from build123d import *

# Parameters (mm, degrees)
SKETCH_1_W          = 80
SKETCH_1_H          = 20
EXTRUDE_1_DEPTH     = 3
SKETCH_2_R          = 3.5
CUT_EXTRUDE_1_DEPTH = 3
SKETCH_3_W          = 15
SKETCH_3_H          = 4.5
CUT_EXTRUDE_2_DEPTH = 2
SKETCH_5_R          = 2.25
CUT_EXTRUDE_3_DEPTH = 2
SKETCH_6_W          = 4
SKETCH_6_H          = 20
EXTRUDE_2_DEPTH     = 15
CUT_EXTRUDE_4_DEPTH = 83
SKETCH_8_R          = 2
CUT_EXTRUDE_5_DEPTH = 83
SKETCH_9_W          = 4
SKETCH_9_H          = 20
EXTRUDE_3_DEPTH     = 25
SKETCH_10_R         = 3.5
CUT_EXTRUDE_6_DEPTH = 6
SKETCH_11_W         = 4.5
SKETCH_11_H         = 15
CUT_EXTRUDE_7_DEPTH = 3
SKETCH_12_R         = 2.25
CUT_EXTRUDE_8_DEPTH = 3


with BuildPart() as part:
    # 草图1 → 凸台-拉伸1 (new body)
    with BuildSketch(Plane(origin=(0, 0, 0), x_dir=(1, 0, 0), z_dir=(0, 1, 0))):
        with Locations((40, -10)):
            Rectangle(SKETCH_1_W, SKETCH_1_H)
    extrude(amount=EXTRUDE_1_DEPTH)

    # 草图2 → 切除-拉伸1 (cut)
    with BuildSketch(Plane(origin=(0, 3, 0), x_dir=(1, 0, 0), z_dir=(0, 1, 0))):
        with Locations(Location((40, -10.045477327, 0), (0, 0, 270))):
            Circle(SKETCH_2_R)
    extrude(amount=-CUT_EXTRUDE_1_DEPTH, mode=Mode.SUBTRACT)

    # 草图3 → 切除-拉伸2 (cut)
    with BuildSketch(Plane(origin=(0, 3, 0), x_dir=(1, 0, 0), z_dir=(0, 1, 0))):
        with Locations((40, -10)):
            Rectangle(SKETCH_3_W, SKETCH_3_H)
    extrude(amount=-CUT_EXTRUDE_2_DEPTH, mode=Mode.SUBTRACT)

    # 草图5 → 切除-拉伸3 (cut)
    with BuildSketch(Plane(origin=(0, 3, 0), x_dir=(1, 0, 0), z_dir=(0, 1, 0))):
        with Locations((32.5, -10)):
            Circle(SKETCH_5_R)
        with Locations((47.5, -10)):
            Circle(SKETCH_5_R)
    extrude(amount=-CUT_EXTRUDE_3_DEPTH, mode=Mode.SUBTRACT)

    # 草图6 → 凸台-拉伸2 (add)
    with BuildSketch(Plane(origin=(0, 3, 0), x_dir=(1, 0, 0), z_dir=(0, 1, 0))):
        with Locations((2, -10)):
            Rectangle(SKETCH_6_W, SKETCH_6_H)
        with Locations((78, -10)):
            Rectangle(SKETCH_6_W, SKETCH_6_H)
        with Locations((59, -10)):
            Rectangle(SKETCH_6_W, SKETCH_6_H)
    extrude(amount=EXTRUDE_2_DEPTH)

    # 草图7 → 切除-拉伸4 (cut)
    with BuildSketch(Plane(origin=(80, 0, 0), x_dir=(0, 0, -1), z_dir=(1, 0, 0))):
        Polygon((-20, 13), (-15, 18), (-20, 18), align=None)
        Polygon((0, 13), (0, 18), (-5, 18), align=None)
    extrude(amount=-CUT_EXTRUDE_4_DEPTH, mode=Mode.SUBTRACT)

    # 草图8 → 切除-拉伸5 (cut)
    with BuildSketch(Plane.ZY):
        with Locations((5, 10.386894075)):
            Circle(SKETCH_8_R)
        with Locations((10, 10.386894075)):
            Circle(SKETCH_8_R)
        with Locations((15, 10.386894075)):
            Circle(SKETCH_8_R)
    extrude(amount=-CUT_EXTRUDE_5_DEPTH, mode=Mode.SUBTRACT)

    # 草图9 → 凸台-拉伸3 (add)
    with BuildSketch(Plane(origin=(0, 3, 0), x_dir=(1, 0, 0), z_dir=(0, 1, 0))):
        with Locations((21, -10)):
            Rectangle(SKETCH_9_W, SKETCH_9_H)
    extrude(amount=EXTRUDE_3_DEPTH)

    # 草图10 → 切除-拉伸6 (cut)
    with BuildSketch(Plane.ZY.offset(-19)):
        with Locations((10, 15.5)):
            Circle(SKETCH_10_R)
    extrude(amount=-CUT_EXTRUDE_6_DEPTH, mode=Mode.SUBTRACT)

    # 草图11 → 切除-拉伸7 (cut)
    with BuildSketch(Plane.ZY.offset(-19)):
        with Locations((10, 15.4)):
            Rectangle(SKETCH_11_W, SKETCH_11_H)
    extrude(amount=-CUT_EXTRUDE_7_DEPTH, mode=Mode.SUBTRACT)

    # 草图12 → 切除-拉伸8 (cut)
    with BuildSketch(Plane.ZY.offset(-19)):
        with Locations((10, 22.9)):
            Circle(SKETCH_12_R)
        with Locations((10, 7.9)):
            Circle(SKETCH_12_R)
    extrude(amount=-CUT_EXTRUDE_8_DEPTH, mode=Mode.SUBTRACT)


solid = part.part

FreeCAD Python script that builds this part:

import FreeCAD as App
import Part
import Sketcher

V = App.Vector
Q = App.Units.Quantity

doc = App.newDocument("Part")
body = doc.addObject("PartDesign::Body", "Body")

sketch1 = body.newObject("Sketcher::SketchObject", "Sketch")
sketch1.AttachmentSupport = (doc.getObject("XZ_Plane"), [""])
sketch1.MapMode = "FlatFace"
sketch1.addGeometry([
    Part.LineSegment(V(0, 0, 0), V(0, 20, 0)),
    Part.LineSegment(V(0, 20, 0), V(80, 20, 0)),
    Part.LineSegment(V(80, 20, 0), V(80, 0, 0)),
    Part.LineSegment(V(80, 0, 0), V(0, 0, 0)),
], False)
sketch1.addConstraint([
    Sketcher.Constraint("Coincident", 0, 2, 1, 1),
    Sketcher.Constraint("Coincident", 1, 2, 2, 1),
    Sketcher.Constraint("Coincident", 2, 2, 3, 1),
    Sketcher.Constraint("Coincident", 3, 2, 0, 1),
    Sketcher.Constraint("Vertical", 0),
    Sketcher.Constraint("Horizontal", 1),
    Sketcher.Constraint("Vertical", 2),
    Sketcher.Constraint("Horizontal", 3),
    Sketcher.Constraint("Coincident", 3, 2, -1, 1),
    Sketcher.Constraint("DistanceX", 1, 1, 1, 2, Q("80 mm")),
    Sketcher.Constraint("DistanceY", 0, 1, 0, 2, Q("20 mm")),
])
pad1 = body.newObject("PartDesign::Pad", "Pad")
pad1.Profile = sketch1
pad1.Length = 3
pad1.Reversed = True

sketch2 = body.newObject("Sketcher::SketchObject", "Sketch001")
sketch2.AttachmentSupport = (doc.getObject("XZ_Plane"), [""])
sketch2.MapMode = "FlatFace"
sketch2.AttachmentOffset = App.Placement(V(0, 0, -3), App.Rotation())
sketch2.addGeometry(Part.Circle(V(40, 10, 0), V(0, 0, 1), 3.5), False)
sketch2.addConstraint([
    Sketcher.Constraint("Diameter", 0, Q("7 mm")),
    Sketcher.Constraint("DistanceX", -1, 1, 0, 3, Q("40 mm")),
    Sketcher.Constraint("DistanceY", -1, 1, 0, 3, Q("10.045477 mm")),
])
pocket1 = body.newObject("PartDesign::Pocket", "Pocket")
pocket1.Profile = sketch2
pocket1.Length = 3
pocket1.Reversed = True

sketch3 = body.newObject("Sketcher::SketchObject", "Sketch002")
sketch3.AttachmentSupport = (doc.getObject("XZ_Plane"), [""])
sketch3.MapMode = "FlatFace"
sketch3.AttachmentOffset = App.Placement(V(0, 0, -3), App.Rotation())
sketch3.addGeometry([
    Part.LineSegment(V(32.5, 7.8, 0), V(32.5, 12.2, 0)),
    Part.LineSegment(V(32.5, 12.2, 0), V(47.5, 12.2, 0)),
    Part.LineSegment(V(47.5, 12.2, 0), V(47.5, 7.8, 0)),
    Part.LineSegment(V(47.5, 7.8, 0), V(32.5, 7.8, 0)),
], False)
sketch3.addConstraint([
    Sketcher.Constraint("Coincident", 0, 2, 1, 1),
    Sketcher.Constraint("Coincident", 1, 2, 2, 1),
    Sketcher.Constraint("Coincident", 2, 2, 3, 1),
    Sketcher.Constraint("Coincident", 3, 2, 0, 1),
    Sketcher.Constraint("Vertical", 0),
    Sketcher.Constraint("Horizontal", 1),
    Sketcher.Constraint("Vertical", 2),
    Sketcher.Constraint("Horizontal", 3),
    Sketcher.Constraint("DistanceX", 1, 1, 1, 2, Q("15 mm")),
    Sketcher.Constraint("DistanceY", 0, 1, 0, 2, Q("4.5 mm")),
    Sketcher.Constraint("DistanceX", -1, 1, 0, 2, Q("32.5 mm")),
    Sketcher.Constraint("DistanceY", -1, 1, 0, 2, Q("12.25 mm")),
])
pocket2 = body.newObject("PartDesign::Pocket", "Pocket001")
pocket2.Profile = sketch3
pocket2.Length = 2
pocket2.Reversed = True

sketch4 = body.newObject("Sketcher::SketchObject", "Sketch003")
sketch4.AttachmentSupport = (doc.getObject("XZ_Plane"), [""])
sketch4.MapMode = "FlatFace"
sketch4.AttachmentOffset = App.Placement(V(0, 0, -3), App.Rotation())
sketch4.addGeometry([
    Part.Circle(V(32.5, 10, 0), V(0, 0, 1), 2.2),
    Part.Circle(V(47.5, 10, 0), V(0, 0, 1), 2.2),
], False)
sketch4.addConstraint([
    Sketcher.Constraint("Equal", 0, 1),
    Sketcher.Constraint("Horizontal", 0, 3, 1, 3),
    Sketcher.Constraint("Diameter", 0, Q("4.5 mm")),
    Sketcher.Constraint("DistanceY", -1, 1, 0, 3, Q("10 mm")),
    Sketcher.Constraint("DistanceX", 0, 3, 1, 3, Q("15 mm")),
    Sketcher.Constraint("DistanceX", -1, 1, 0, 3, Q("32.5 mm")),
])
pocket3 = body.newObject("PartDesign::Pocket", "Pocket002")
pocket3.Profile = sketch4
pocket3.Length = 2
pocket3.Reversed = True

sketch5 = body.newObject("Sketcher::SketchObject", "Sketch004")
sketch5.AttachmentSupport = (doc.getObject("XZ_Plane"), [""])
sketch5.MapMode = "FlatFace"
sketch5.AttachmentOffset = App.Placement(V(0, 0, -3), App.Rotation())
sketch5.addGeometry([
    Part.LineSegment(V(0, 0, 0), V(0, 20, 0)),
    Part.LineSegment(V(0, 20, 0), V(4, 20, 0)),
    Part.LineSegment(V(4, 20, 0), V(4, 0, 0)),
    Part.LineSegment(V(4, 0, 0), V(0, 0, 0)),
    Part.LineSegment(V(76, 0, 0), V(76, 20, 0)),
    Part.LineSegment(V(76, 20, 0), V(80, 20, 0)),
    Part.LineSegment(V(80, 20, 0), V(80, 0, 0)),
    Part.LineSegment(V(80, 0, 0), V(76, 0, 0)),
    Part.LineSegment(V(57, 0, 0), V(57, 20, 0)),
    Part.LineSegment(V(57, 20, 0), V(61, 20, 0)),
    Part.LineSegment(V(61, 20, 0), V(61, 0, 0)),
    Part.LineSegment(V(61, 0, 0), V(57, 0, 0)),
], False)
sketch5.addConstraint([
    Sketcher.Constraint("Coincident", 0, 2, 1, 1),
    Sketcher.Constraint("Coincident", 1, 2, 2, 1),
    Sketcher.Constraint("Coincident", 2, 2, 3, 1),
    Sketcher.Constraint("Coincident", 3, 2, 0, 1),
    Sketcher.Constraint("Coincident", 4, 2, 5, 1),
    Sketcher.Constraint("Coincident", 5, 2, 6, 1),
    Sketcher.Constraint("Coincident", 6, 2, 7, 1),
    Sketcher.Constraint("Coincident", 7, 2, 4, 1),
    Sketcher.Constraint("Coincident", 8, 2, 9, 1),
    Sketcher.Constraint("Coincident", 9, 2, 10, 1),
    Sketcher.Constraint("Coincident", 10, 2, 11, 1),
    Sketcher.Constraint("Coincident", 11, 2, 8, 1),
    Sketcher.Constraint("Vertical", 0),
    Sketcher.Constraint("Horizontal", 1),
    Sketcher.Constraint("Vertical", 2),
    Sketcher.Constraint("Horizontal", 3),
    Sketcher.Constraint("Vertical", 4),
    Sketcher.Constraint("Horizontal", 5),
    Sketcher.Constraint("Vertical", 6),
    Sketcher.Constraint("Horizontal", 7),
    Sketcher.Constraint("Vertical", 8),
    Sketcher.Constraint("Horizontal", 9),
    Sketcher.Constraint("Vertical", 10),
    Sketcher.Constraint("Horizontal", 11),
    Sketcher.Constraint("Coincident", 3, 2, -1, 1),
    Sketcher.Constraint("PointOnObject", 6, 2, -1),
    Sketcher.Constraint("PointOnObject", 10, 2, -1),
    Sketcher.Constraint("Horizontal", 1, 2, 4, 2),
    Sketcher.Constraint("Horizontal", 5, 2, 8, 2),
    Sketcher.Constraint("Equal", 3, 5),
    Sketcher.Constraint("Equal", 7, 9),
    Sketcher.Constraint("DistanceX", 1, 1, 1, 2, Q("4 mm")),
    Sketcher.Constraint("DistanceY", 0, 1, 0, 2, Q("20 mm")),
    Sketcher.Constraint("DistanceX", -1, 1, 4, 2, Q("76 mm")),
    Sketcher.Constraint("DistanceX", -1, 1, 8, 2, Q("57 mm")),
])
pad2 = body.newObject("PartDesign::Pad", "Pad001")
pad2.Profile = sketch5
pad2.Length = 15
pad2.Reversed = True

sketch6 = body.newObject("Sketcher::SketchObject", "Sketch005")
sketch6.AttachmentSupport = (doc.getObject("YZ_Plane"), [""])
sketch6.MapMode = "FlatFace"
sketch6.AttachmentOffset = App.Placement(V(0, 0, 80), App.Rotation())
sketch6.addGeometry([
    Part.LineSegment(V(13, 20, 0), V(18, 15, 0)),
    Part.LineSegment(V(18, 15, 0), V(18, 20, 0)),
    Part.LineSegment(V(18, 20, 0), V(13, 20, 0)),
    Part.LineSegment(V(13, 0, 0), V(18, 0, 0)),
    Part.LineSegment(V(18, 0, 0), V(18, 5, 0)),
    Part.LineSegment(V(18, 5, 0), V(13, 0, 0)),
], False)
sketch6.addConstraint([
    Sketcher.Constraint("Coincident", 0, 2, 1, 1),
    Sketcher.Constraint("Coincident", 1, 2, 2, 1),
    Sketcher.Constraint("Coincident", 2, 2, 0, 1),
    Sketcher.Constraint("Coincident", 3, 2, 4, 1),
    Sketcher.Constraint("Coincident", 4, 2, 5, 1),
    Sketcher.Constraint("Coincident", 5, 2, 3, 1),
    Sketcher.Constraint("Vertical", 1),
    Sketcher.Constraint("Horizontal", 2),
    Sketcher.Constraint("Horizontal", 3),
    Sketcher.Constraint("Vertical", 4),
    Sketcher.Constraint("PointOnObject", 3, 2, -1),
    Sketcher.Constraint("Perpendicular", 0, 5),
    Sketcher.Constraint("Vertical", 1, 2, 3, 2),
    Sketcher.Constraint("Vertical", 2, 2, 5, 2),
    Sketcher.Constraint("Equal", 3, 1),
    Sketcher.Constraint("DistanceX", 2, 2, 2, 1, Q("5 mm")),
    Sketcher.Constraint("DistanceX", -1, 1, 0, 2, Q("18 mm")),
    Sketcher.Constraint("DistanceY", -1, 1, 0, 2, Q("15 mm")),
])
pocket4 = body.newObject("PartDesign::Pocket", "Pocket003")
pocket4.Profile = sketch6
pocket4.Length = 83

sketch7 = body.newObject("Sketcher::SketchObject", "Sketch006")
sketch7.AttachmentSupport = (doc.getObject("YZ_Plane"), [""])
sketch7.MapMode = "FlatFace"
sketch7.addGeometry([
    Part.Circle(V(10.4, 5, 0), V(0, 0, 1), 2),
    Part.Circle(V(10.4, 10, 0), V(0, 0, 1), 2),
    Part.Circle(V(10.4, 15, 0), V(0, 0, 1), 2),
], False)
sketch7.addConstraint([
    Sketcher.Constraint("Equal", 0, 1),
    Sketcher.Constraint("Equal", 1, 2),
    Sketcher.Constraint("Vertical", 0, 3, 1, 3),
    Sketcher.Constraint("Vertical", 1, 3, 2, 3),
    Sketcher.Constraint("Diameter", 0, Q("4 mm")),
    Sketcher.Constraint("DistanceY", -1, 1, 0, 3, Q("5 mm")),
    Sketcher.Constraint("DistanceY", -1, 1, 1, 3, Q("10 mm")),
    Sketcher.Constraint("DistanceY", -1, 1, 2, 3, Q("15 mm")),
    Sketcher.Constraint("DistanceX", -1, 1, 0, 3, Q("10.386894 mm")),
])
pocket5 = body.newObject("PartDesign::Pocket", "Pocket004")
pocket5.Profile = sketch7
pocket5.Length = 83
pocket5.Reversed = True

sketch8 = body.newObject("Sketcher::SketchObject", "Sketch007")
sketch8.AttachmentSupport = (doc.getObject("XZ_Plane"), [""])
sketch8.MapMode = "FlatFace"
sketch8.AttachmentOffset = App.Placement(V(0, 0, -3), App.Rotation())
sketch8.addGeometry([
    Part.LineSegment(V(19, 0, 0), V(19, 20, 0)),
    Part.LineSegment(V(19, 20, 0), V(23, 20, 0)),
    Part.LineSegment(V(23, 20, 0), V(23, 0, 0)),
    Part.LineSegment(V(23, 0, 0), V(19, 0, 0)),
], False)
sketch8.addConstraint([
    Sketcher.Constraint("Coincident", 0, 2, 1, 1),
    Sketcher.Constraint("Coincident", 1, 2, 2, 1),
    Sketcher.Constraint("Coincident", 2, 2, 3, 1),
    Sketcher.Constraint("Coincident", 3, 2, 0, 1),
    Sketcher.Constraint("Vertical", 0),
    Sketcher.Constraint("Horizontal", 1),
    Sketcher.Constraint("Vertical", 2),
    Sketcher.Constraint("Horizontal", 3),
    Sketcher.Constraint("PointOnObject", 2, 2, -1),
    Sketcher.Constraint("DistanceX", 1, 1, 1, 2, Q("4 mm")),
    Sketcher.Constraint("DistanceY", 0, 1, 0, 2, Q("20 mm")),
    Sketcher.Constraint("DistanceX", -1, 1, 0, 2, Q("19 mm")),
])
pad3 = body.newObject("PartDesign::Pad", "Pad002")
pad3.Profile = sketch8
pad3.Length = 25
pad3.Reversed = True

sketch9 = body.newObject("Sketcher::SketchObject", "Sketch008")
sketch9.AttachmentSupport = (doc.getObject("YZ_Plane"), [""])
sketch9.MapMode = "FlatFace"
sketch9.AttachmentOffset = App.Placement(V(0, 0, 19), App.Rotation())
sketch9.addGeometry(Part.Circle(V(15.5, 10, 0), V(0, 0, 1), 3.5), False)
sketch9.addConstraint([
    Sketcher.Constraint("Diameter", 0, Q("7 mm")),
    Sketcher.Constraint("DistanceY", -1, 1, 0, 3, Q("10 mm")),
    Sketcher.Constraint("DistanceX", -1, 1, 0, 3, Q("15.5 mm")),
])
pocket6 = body.newObject("PartDesign::Pocket", "Pocket005")
pocket6.Profile = sketch9
pocket6.Length = 6
pocket6.Reversed = True

sketch10 = body.newObject("Sketcher::SketchObject", "Sketch009")
sketch10.AttachmentSupport = (doc.getObject("YZ_Plane"), [""])
sketch10.MapMode = "FlatFace"
sketch10.AttachmentOffset = App.Placement(V(0, 0, 19), App.Rotation())
sketch10.addGeometry([
    Part.LineSegment(V(22.9, 7.8, 0), V(7.9, 7.8, 0)),
    Part.LineSegment(V(7.9, 7.8, 0), V(7.9, 12.2, 0)),
    Part.LineSegment(V(7.9, 12.2, 0), V(22.9, 12.2, 0)),
    Part.LineSegment(V(22.9, 12.2, 0), V(22.9, 7.8, 0)),
], False)
sketch10.addConstraint([
    Sketcher.Constraint("Coincident", 0, 2, 1, 1),
    Sketcher.Constraint("Coincident", 1, 2, 2, 1),
    Sketcher.Constraint("Coincident", 2, 2, 3, 1),
    Sketcher.Constraint("Coincident", 3, 2, 0, 1),
    Sketcher.Constraint("Horizontal", 0),
    Sketcher.Constraint("Vertical", 1),
    Sketcher.Constraint("Horizontal", 2),
    Sketcher.Constraint("Vertical", 3),
    Sketcher.Constraint("DistanceX", 0, 2, 0, 1, Q("15 mm")),
    Sketcher.Constraint("DistanceY", 1, 1, 1, 2, Q("4.5 mm")),
    Sketcher.Constraint("DistanceX", -1, 1, 0, 2, Q("7.9 mm")),
    Sketcher.Constraint("DistanceY", -1, 1, 0, 2, Q("7.75 mm")),
])
pocket7 = body.newObject("PartDesign::Pocket", "Pocket006")
pocket7.Profile = sketch10
pocket7.Length = 3
pocket7.Reversed = True

sketch11 = body.newObject("Sketcher::SketchObject", "Sketch010")
sketch11.AttachmentSupport = (doc.getObject("YZ_Plane"), [""])
sketch11.MapMode = "FlatFace"
sketch11.AttachmentOffset = App.Placement(V(0, 0, 19), App.Rotation())
sketch11.addGeometry([
    Part.Circle(V(22.9, 10, 0), V(0, 0, 1), 2.2),
    Part.Circle(V(7.9, 10, 0), V(0, 0, 1), 2.2),
], False)
sketch11.addConstraint([
    Sketcher.Constraint("Equal", 0, 1),
    Sketcher.Constraint("Horizontal", 0, 3, 1, 3),
    Sketcher.Constraint("Diameter", 0, Q("4.5 mm")),
    Sketcher.Constraint("DistanceY", -1, 1, 0, 3, Q("10 mm")),
    Sketcher.Constraint("DistanceX", 1, 3, 0, 3, Q("15 mm")),
    Sketcher.Constraint("DistanceX", -1, 1, 0, 3, Q("22.9 mm")),
])
pocket8 = body.newObject("PartDesign::Pocket", "Pocket007")
pocket8.Profile = sketch11
pocket8.Length = 3
pocket8.Reversed = True

doc.recompute()
